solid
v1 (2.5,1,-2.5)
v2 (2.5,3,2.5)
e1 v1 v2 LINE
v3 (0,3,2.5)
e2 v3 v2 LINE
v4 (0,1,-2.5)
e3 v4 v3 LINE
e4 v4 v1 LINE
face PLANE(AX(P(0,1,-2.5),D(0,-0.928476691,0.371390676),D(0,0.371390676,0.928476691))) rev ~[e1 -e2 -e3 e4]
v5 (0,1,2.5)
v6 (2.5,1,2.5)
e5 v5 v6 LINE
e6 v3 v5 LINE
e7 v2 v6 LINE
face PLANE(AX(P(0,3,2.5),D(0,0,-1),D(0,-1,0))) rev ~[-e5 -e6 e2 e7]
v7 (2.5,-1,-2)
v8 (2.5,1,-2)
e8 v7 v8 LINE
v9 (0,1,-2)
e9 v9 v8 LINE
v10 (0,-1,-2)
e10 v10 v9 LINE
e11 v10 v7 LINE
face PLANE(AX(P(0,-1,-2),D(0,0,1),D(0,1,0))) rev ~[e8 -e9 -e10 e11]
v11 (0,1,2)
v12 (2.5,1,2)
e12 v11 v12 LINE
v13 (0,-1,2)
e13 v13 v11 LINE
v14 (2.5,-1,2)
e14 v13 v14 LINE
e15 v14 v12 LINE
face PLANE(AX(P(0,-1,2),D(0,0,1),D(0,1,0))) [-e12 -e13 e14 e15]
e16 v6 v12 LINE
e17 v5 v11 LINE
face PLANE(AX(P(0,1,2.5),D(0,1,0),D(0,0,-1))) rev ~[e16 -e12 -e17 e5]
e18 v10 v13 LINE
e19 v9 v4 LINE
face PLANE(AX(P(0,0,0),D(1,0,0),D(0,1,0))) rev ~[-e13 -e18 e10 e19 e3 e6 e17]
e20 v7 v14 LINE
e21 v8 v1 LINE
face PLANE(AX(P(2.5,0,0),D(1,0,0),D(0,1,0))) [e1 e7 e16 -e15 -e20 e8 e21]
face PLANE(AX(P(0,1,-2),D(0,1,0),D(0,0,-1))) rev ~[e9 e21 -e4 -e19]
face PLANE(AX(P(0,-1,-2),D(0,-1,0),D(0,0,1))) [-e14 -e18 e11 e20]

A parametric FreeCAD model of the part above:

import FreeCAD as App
import Part
import Sketcher

V = App.Vector

doc = App.newDocument("Part")
body = doc.addObject("PartDesign::Body", "Body")

sketch1 = body.newObject("Sketcher::SketchObject", "Sketch")
sketch1.AttachmentSupport = (doc.getObject("YZ_Plane"), [""])
sketch1.MapMode = "FlatFace"
sketch1.addGeometry([
    Part.LineSegment(V(-1, 2, 0), V(-1, -2, 0)),
    Part.LineSegment(V(-1, -2, 0), V(1, -2, 0)),
    Part.LineSegment(V(1, -2, 0), V(1, -2.5, 0)),
    Part.LineSegment(V(1, -2.5, 0), V(3, 2.5, 0)),
    Part.LineSegment(V(3, 2.5, 0), V(1, 2.5, 0)),
    Part.LineSegment(V(1, 2.5, 0), V(1, 2, 0)),
    Part.LineSegment(V(1, 2, 0), V(-1, 2, 0)),
], False)
sketch1.addConstraint([
    Sketcher.Constraint("Coincident", 0, 2, 1, 1),
    Sketcher.Constraint("Coincident", 1, 2, 2, 1),
    Sketcher.Constraint("Coincident", 2, 2, 3, 1),
    Sketcher.Constraint("Coincident", 3, 2, 4, 1),
    Sketcher.Constraint("Coincident", 4, 2, 5, 1),
    Sketcher.Constraint("Coincident", 5, 2, 6, 1),
    Sketcher.Constraint("Coincident", 6, 2, 0, 1),
    Sketcher.Constraint("Vertical", 0),
    Sketcher.Constraint("Horizontal", 1),
    Sketcher.Constraint("Vertical", 2),
    Sketcher.Constraint("Horizontal", 4),
    Sketcher.Constraint("Vertical", 5),
    Sketcher.Constraint("Horizontal", 6),
    Sketcher.Constraint("Symmetric", 0, 2, 5, 2, -1, 1),
    Sketcher.Constraint("Symmetric", 2, 2, 4, 2, -1),
    Sketcher.Constraint("Equal", 1, 4),
    Sketcher.Constraint("DistanceX", 1, 1, 1, 2, 2.0),
    Sketcher.Constraint("DistanceY", 0, 2, 0, 1, 4.0),
    Sketcher.Constraint("DistanceY", 2, 2, 2, 1, 0.5),
])
pad1 = body.newObject("PartDesign::Pad", "Pad")
pad1.Profile = sketch1
pad1.Length = 2.5

doc.recompute()
